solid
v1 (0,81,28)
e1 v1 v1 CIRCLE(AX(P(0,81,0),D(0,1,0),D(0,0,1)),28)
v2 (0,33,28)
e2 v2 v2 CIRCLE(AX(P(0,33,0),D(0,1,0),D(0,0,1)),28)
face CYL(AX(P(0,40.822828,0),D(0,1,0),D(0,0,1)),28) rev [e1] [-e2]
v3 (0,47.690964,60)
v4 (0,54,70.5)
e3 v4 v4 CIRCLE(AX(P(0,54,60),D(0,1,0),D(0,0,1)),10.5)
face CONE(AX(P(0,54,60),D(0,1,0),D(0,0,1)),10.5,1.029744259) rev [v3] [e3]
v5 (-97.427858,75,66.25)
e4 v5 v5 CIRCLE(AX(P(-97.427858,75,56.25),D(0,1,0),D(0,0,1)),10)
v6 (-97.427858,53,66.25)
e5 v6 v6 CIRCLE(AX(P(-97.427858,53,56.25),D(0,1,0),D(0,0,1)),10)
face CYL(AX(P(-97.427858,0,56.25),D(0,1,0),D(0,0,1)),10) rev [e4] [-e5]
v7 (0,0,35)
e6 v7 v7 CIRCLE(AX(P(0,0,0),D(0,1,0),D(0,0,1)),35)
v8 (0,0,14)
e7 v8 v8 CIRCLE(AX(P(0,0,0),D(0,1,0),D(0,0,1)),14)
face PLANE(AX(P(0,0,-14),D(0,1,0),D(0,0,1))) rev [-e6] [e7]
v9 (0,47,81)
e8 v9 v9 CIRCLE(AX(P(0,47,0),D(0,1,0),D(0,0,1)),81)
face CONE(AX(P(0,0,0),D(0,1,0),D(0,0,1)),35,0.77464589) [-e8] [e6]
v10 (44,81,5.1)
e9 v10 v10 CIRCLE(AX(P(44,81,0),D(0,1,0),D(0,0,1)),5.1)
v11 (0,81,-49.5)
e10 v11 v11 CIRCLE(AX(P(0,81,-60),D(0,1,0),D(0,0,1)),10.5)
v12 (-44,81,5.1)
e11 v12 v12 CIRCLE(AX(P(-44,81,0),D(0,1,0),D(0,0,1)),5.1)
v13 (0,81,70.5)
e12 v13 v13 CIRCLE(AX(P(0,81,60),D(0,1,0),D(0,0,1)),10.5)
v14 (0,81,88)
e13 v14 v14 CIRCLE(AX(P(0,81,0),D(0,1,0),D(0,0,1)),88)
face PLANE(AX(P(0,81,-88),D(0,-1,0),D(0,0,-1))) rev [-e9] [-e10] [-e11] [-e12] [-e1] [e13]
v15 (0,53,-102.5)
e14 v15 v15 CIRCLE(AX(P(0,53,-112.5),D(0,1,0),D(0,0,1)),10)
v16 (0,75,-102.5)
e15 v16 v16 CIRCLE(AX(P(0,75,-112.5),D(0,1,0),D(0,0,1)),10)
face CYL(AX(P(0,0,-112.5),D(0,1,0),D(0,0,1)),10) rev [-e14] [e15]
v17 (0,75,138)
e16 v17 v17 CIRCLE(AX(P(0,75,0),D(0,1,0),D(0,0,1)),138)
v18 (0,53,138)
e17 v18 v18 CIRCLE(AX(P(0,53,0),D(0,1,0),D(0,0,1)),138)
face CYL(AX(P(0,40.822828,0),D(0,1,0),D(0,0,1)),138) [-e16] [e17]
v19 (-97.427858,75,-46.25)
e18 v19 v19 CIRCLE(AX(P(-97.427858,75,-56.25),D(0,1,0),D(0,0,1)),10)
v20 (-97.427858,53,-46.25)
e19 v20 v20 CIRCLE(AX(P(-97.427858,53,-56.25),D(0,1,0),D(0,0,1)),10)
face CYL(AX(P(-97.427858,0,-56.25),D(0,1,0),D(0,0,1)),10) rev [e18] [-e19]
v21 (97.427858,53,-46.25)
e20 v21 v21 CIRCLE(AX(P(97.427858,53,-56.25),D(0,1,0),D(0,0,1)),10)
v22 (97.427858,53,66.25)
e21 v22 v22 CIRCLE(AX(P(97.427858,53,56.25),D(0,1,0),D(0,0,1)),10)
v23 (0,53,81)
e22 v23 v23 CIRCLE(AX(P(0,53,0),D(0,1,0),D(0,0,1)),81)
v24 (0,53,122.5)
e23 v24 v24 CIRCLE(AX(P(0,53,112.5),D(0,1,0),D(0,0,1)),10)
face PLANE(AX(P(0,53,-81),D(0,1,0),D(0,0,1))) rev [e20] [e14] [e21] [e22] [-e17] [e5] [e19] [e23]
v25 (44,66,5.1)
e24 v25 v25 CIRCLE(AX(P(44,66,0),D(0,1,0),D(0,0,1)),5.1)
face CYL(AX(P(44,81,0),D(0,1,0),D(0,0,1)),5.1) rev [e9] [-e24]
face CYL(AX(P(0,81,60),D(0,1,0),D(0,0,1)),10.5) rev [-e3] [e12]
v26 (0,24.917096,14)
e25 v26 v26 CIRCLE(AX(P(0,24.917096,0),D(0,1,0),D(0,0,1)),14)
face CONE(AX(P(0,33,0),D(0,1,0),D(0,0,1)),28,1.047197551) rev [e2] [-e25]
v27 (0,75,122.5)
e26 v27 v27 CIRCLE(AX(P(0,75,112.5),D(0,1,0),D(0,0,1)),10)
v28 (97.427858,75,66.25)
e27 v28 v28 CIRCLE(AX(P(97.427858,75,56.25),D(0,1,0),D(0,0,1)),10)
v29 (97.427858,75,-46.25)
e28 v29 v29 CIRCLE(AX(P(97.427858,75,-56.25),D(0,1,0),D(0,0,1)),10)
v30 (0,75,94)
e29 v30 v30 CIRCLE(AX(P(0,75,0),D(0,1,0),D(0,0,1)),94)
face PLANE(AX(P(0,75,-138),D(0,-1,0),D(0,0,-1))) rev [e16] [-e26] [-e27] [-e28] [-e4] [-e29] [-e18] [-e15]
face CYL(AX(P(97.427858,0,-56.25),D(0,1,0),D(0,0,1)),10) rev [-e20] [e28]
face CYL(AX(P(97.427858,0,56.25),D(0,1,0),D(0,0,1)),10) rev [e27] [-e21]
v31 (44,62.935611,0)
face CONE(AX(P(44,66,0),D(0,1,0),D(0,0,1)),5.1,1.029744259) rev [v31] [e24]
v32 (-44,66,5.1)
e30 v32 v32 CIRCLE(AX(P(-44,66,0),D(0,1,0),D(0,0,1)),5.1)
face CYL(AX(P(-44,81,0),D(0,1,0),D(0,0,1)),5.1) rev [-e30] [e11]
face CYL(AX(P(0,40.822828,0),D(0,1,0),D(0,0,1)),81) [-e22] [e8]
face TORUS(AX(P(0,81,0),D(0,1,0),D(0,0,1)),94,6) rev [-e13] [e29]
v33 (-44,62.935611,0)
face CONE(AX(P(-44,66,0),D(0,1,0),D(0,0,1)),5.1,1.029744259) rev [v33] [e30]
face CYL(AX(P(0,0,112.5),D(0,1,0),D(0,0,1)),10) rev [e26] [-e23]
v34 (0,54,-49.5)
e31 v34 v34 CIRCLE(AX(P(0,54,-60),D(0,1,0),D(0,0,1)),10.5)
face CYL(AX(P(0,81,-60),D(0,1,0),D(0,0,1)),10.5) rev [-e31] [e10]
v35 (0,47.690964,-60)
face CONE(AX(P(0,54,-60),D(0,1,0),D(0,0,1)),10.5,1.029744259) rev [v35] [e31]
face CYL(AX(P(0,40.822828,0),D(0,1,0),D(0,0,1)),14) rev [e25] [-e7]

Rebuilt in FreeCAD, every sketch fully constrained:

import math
import FreeCAD as App
import Part
import Sketcher

V = App.Vector
Q = App.Units.Quantity

doc = App.newDocument("Part")
body = doc.addObject("PartDesign::Body", "Body")

# Sketch on YZ plane
sketch1 = body.newObject("Sketcher::SketchObject", "Sketch")
sketch1.AttachmentSupport = (doc.getObject("YZ_Plane"), [""])
sketch1.MapMode = "FlatFace"
sketch1.addGeometry([
    Part.LineSegment(V(0, -14, 0), V(0, -35, 0)),  # 0
    Part.LineSegment(V(0, -35, 0), V(47, -81, 0)),  # 1
    Part.LineSegment(V(47, -81, 0), V(53, -81, 0)),  # 2
    Part.LineSegment(V(53, -81, 0), V(53, -138, 0)),  # 3
    Part.LineSegment(V(53, -138, 0), V(75, -138, 0)),  # 4
    Part.LineSegment(V(75, -138, 0), V(75, -94, 0)),  # 5
    Part.ArcOfCircle(Part.Circle(V(81, -94, 0), V(0, 0, 1), 6), math.radians(90), math.radians(180)),  # 6
    Part.LineSegment(V(81, -88, 0), V(81, -28, 0)),  # 7
    Part.LineSegment(V(81, -28, 0), V(33, -28, 0)),  # 8
    Part.LineSegment(V(33, -28, 0), V(25, -14, 0)),  # 9
    Part.LineSegment(V(25, -14, 0), V(0, -14, 0)),  # 10
], False)
sketch1.addConstraint([
    Sketcher.Constraint("Coincident", 0, 2, 1, 1),
    Sketcher.Constraint("Coincident", 1, 2, 2, 1),
    Sketcher.Constraint("Coincident", 2, 2, 3, 1),
    Sketcher.Constraint("Coincident", 3, 2, 4, 1),
    Sketcher.Constraint("Coincident", 4, 2, 5, 1),
    Sketcher.Constraint("Tangent", 5, 2, 6, 2),
    Sketcher.Constraint("Coincident", 6, 1, 7, 1),
    Sketcher.Constraint("Coincident", 7, 2, 8, 1),
    Sketcher.Constraint("Coincident", 8, 2, 9, 1),
    Sketcher.Constraint("Coincident", 9, 2, 10, 1),
    Sketcher.Constraint("Coincident", 10, 2, 0, 1),
    Sketcher.Constraint("Vertical", 0),
    Sketcher.Constraint("Horizontal", 2),
    Sketcher.Constraint("Vertical", 3),
    Sketcher.Constraint("Horizontal", 4),
    Sketcher.Constraint("Vertical", 5),
    Sketcher.Constraint("Vertical", 7),
    Sketcher.Constraint("Horizontal", 8),
    Sketcher.Constraint("Horizontal", 10),
    Sketcher.Constraint("PointOnObject", 0, 2, -2),
    Sketcher.Constraint("Radius", 6, Q("6 mm")),
    Sketcher.Constraint("DistanceX", 2, 1, 2, 2, Q("6 mm")),
    Sketcher.Constraint("DistanceX", 4, 1, 4, 2, Q("22 mm")),
    Sketcher.Constraint("DistanceX", 8, 2, 8, 1, Q("48 mm")),
    Sketcher.Constraint("DistanceY", 0, 2, 0, 1, Q("21 mm")),
    Sketcher.Constraint("DistanceY", 3, 2, 3, 1, Q("57 mm")),
    Sketcher.Constraint("DistanceY", 5, 1, 5, 2, Q("44 mm")),
    Sketcher.Constraint("DistanceY", 7, 1, 7, 2, Q("60 mm")),
    Sketcher.Constraint("Angle", 9, Q("120 deg")),
    Sketcher.Constraint("DistanceX", -1, 1, 6, 3, Q("81 mm")),
    Sketcher.Constraint("DistanceY", 6, 3, -1, 1, Q("94 mm")),
    Sketcher.Constraint("DistanceY", 0, 2, -1, 1, Q("35 mm")),
    Sketcher.Constraint("DistanceX", -1, 1, 6, 1, Q("81 mm")),
])
revolution = body.newObject("PartDesign::Revolution", "Revolution")
revolution.Profile = sketch1
revolution.ReferenceAxis = (sketch1, ["H_Axis"])
revolution.Angle = 360

# Sketch on XZ plane
sketch2 = body.newObject("Sketcher::SketchObject", "Sketch001")
sketch2.AttachmentSupport = (doc.getObject("XZ_Plane"), [""])
sketch2.MapMode = "FlatFace"
sketch2.AttachmentOffset = App.Placement(V(0, 0, -75), App.Rotation())
sketch2.addGeometry([
    Part.Circle(V(0, -112, 0), V(0, 0, 1), 10),  # 0
    Part.Circle(V(97, -56, 0), V(0, 0, 1), 10),  # 1
    Part.Circle(V(97, 56, 0), V(0, 0, 1), 10),  # 2
    Part.Circle(V(0, 112, 0), V(0, 0, 1), 10),  # 3
    Part.Circle(V(-97, 56, 0), V(0, 0, 1), 10),  # 4
    Part.Circle(V(-97, -56, 0), V(0, 0, 1), 10),  # 5
], False)
sketch2.addConstraint([
    Sketcher.Constraint("Equal", 0, 1),
    Sketcher.Constraint("Equal", 1, 2),
    Sketcher.Constraint("Equal", 2, 3),
    Sketcher.Constraint("Equal", 3, 4),
    Sketcher.Constraint("Equal", 4, 5),
    Sketcher.Constraint("Symmetric", 0, 3, 3, 3, -1, 1),
    Sketcher.Constraint("Symmetric", 1, 3, 4, 3, -1, 1),
    Sketcher.Constraint("Symmetric", 2, 3, 5, 3, -1, 1),
    Sketcher.Constraint("Symmetric", 2, 3, 4, 3, -2),
    Sketcher.Constraint("PointOnObject", 0, 3, -2),
    Sketcher.Constraint("Diameter", 0, Q("20 mm")),
    Sketcher.Constraint("DistanceY", 0, 3, 3, 3, Q("225 mm")),
    Sketcher.Constraint("DistanceY", 1, 3, 2, 3, Q("112.5 mm")),
    Sketcher.Constraint("DistanceX", -1, 1, 1, 3, Q("97.427858 mm")),
])
pocket1 = body.newObject("PartDesign::Pocket", "Pocket")
pocket1.Profile = sketch2
pocket1.Type = "ThroughAll"
pocket1.Reversed = True

# Sketch on XZ plane
sketch3 = body.newObject("Sketcher::SketchObject", "Sketch002")
sketch3.AttachmentSupport = (doc.getObject("XZ_Plane"), [""])
sketch3.MapMode = "FlatFace"
sketch3.AttachmentOffset = App.Placement(V(0, 0, -81), App.Rotation())
sketch3.addGeometry([
    Part.Circle(V(0, -60, 0), V(0, 0, 1), 10),
    Part.Circle(V(0, 60, 0), V(0, 0, 1), 10),
    Part.Circle(V(-6, 5, 0), V(0, 0, 1), 10),
], False)
sketch3.addConstraint([
    Sketcher.Constraint("Equal", 0, 1),
    Sketcher.Constraint("Equal", 1, 2),
    Sketcher.Constraint("Symmetric", 0, 3, 1, 3, -1, 1),
    Sketcher.Constraint("PointOnObject", 0, 3, -2),
    Sketcher.Constraint("Diameter", 0, Q("21 mm")),
    Sketcher.Constraint("DistanceY", 0, 3, -1, 1, Q("60 mm")),
    Sketcher.Constraint("DistanceX", 2, 3, -1, 1, Q("5.787214 mm")),
    Sketcher.Constraint("DistanceY", -1, 1, 2, 3, Q("5.032103 mm")),
])
doc.recompute()
hole = body.newObject("PartDesign::Hole", "Hole")
hole.Profile = sketch3
hole.ThreadType = "None"
hole.Diameter = 21
hole.DepthType = "Dimension"
hole.Depth = 27
hole.DrillPoint = "Angled"
hole.DrillPointAngle = 118
hole.Reversed = True

# Sketch on XZ plane
sketch4 = body.newObject("Sketcher::SketchObject", "Sketch003")
sketch4.AttachmentSupport = (doc.getObject("XZ_Plane"), [""])
sketch4.MapMode = "FlatFace"
sketch4.AttachmentOffset = App.Placement(V(0, 0, -81), App.Rotation())
sketch4.addGeometry([
    Part.Circle(V(-44, 0, 0), V(0, 0, 1), 5),
    Part.Circle(V(44, 0, 0), V(0, 0, 1), 5),
], False)
sketch4.addConstraint([
    Sketcher.Constraint("Equal", 0, 1),
    Sketcher.Constraint("Symmetric", 0, 3, 1, 3, -1, 1),
    Sketcher.Constraint("PointOnObject", 0, 3, -1),
    Sketcher.Constraint("Diameter", 0, Q("10.2 mm")),
    Sketcher.Constraint("DistanceX", 0, 3, -1, 1, Q("44 mm")),
])
doc.recompute()
hole2 = body.newObject("PartDesign::Hole", "Hole001")
hole2.Profile = sketch4
hole2.ThreadType = "None"
hole2.Diameter = 10.2
hole2.DepthType = "Dimension"
hole2.Depth = 15
hole2.DrillPoint = "Angled"
hole2.DrillPointAngle = 118
hole2.Reversed = True

doc.recompute()
